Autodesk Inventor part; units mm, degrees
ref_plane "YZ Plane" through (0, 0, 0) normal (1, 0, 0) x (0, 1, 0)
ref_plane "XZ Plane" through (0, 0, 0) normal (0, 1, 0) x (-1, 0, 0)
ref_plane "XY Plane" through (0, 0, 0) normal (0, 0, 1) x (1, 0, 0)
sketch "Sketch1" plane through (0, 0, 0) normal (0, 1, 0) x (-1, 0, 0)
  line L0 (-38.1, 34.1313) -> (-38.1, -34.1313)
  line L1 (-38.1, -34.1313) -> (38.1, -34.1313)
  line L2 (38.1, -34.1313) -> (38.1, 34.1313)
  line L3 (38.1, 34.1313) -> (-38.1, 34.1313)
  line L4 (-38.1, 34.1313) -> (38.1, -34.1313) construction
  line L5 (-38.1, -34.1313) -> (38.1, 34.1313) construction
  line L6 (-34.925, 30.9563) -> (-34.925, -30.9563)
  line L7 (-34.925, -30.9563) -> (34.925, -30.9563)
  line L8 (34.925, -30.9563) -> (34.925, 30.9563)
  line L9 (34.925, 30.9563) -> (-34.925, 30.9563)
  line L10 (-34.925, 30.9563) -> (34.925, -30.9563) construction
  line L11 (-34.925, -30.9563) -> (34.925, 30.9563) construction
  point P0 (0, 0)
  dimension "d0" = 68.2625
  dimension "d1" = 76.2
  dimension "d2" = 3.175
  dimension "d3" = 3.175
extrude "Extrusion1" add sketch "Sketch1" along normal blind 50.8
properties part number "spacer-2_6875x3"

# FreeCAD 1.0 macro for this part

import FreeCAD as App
import Part
import Sketcher

V = App.Vector
Q = App.Units.Quantity

doc = App.newDocument("Part")
body = doc.addObject("PartDesign::Body", "Body")

sketch1 = body.newObject("Sketcher::SketchObject", "Sketch")
sketch1.AttachmentSupport = (doc.getObject("XZ_Plane"), [""])
sketch1.MapMode = "FlatFace"
sketch1.addGeometry(Part.LineSegment(V(-38.1, 34.1313, 0), V(38.1, 34.1313, 0)), False)
sketch1.addGeometry(Part.LineSegment(V(38.1, 34.1313, 0), V(38.1, -34.1313, 0)), False)
sketch1.addGeometry(Part.LineSegment(V(38.1, -34.1313, 0), V(-38.1, -34.1313, 0)), False)
sketch1.addGeometry(Part.LineSegment(V(-38.1, -34.1313, 0), V(-38.1, 34.1313, 0)), False)
sketch1.addGeometry(Part.LineSegment(V(34.925, -30.9563, 0), V(34.925, 30.9563, 0)), False)
sketch1.addGeometry(Part.LineSegment(V(34.925, 30.9563, 0), V(-34.925, 30.9563, 0)), False)
sketch1.addGeometry(Part.LineSegment(V(-34.925, 30.9563, 0), V(-34.925, -30.9563, 0)), False)
sketch1.addGeometry(Part.LineSegment(V(-34.925, -30.9563, 0), V(34.925, -30.9563, 0)), False)
sketch1.addConstraint(Sketcher.Constraint("Coincident", 0, 2, 1, 1))
sketch1.addConstraint(Sketcher.Constraint("Coincident", 1, 2, 2, 1))
sketch1.addConstraint(Sketcher.Constraint("Coincident", 2, 2, 3, 1))
sketch1.addConstraint(Sketcher.Constraint("Coincident", 3, 2, 0, 1))
sketch1.addConstraint(Sketcher.Constraint("Coincident", 4, 2, 5, 1))
sketch1.addConstraint(Sketcher.Constraint("Coincident", 5, 2, 6, 1))
sketch1.addConstraint(Sketcher.Constraint("Coincident", 6, 2, 7, 1))
sketch1.addConstraint(Sketcher.Constraint("Coincident", 7, 2, 4, 1))
sketch1.addConstraint(Sketcher.Constraint("Horizontal", 0))
sketch1.addConstraint(Sketcher.Constraint("Vertical", 1))
sketch1.addConstraint(Sketcher.Constraint("Horizontal", 2))
sketch1.addConstraint(Sketcher.Constraint("Vertical", 3))
sketch1.addConstraint(Sketcher.Constraint("Vertical", 4))
sketch1.addConstraint(Sketcher.Constraint("Horizontal", 5))
sketch1.addConstraint(Sketcher.Constraint("Vertical", 6))
sketch1.addConstraint(Sketcher.Constraint("Horizontal", 7))
sketch1.addConstraint(Sketcher.Constraint("Symmetric", 0, 2, 2, 2, -1, 1))
sketch1.addConstraint(Sketcher.Constraint("Symmetric", 4, 2, 6, 2, -1, 1))
sketch1.addConstraint(Sketcher.Constraint("DistanceX", 0, 1, 0, 2, Q("3 in")))
sketch1.addConstraint(Sketcher.Constraint("DistanceY", 1, 2, 1, 1, Q("2.6875 in")))
sketch1.addConstraint(Sketcher.Constraint("DistanceX", 4, 2, 0, 2, Q("0.125 in")))
sketch1.addConstraint(Sketcher.Constraint("DistanceY", 4, 2, 0, 2, Q("0.125 in")))
pad1 = body.newObject("PartDesign::Pad", "Pad")
pad1.Profile = sketch1
pad1.Length = Q("2 in")
pad1.Reversed = True

doc.recompute()
